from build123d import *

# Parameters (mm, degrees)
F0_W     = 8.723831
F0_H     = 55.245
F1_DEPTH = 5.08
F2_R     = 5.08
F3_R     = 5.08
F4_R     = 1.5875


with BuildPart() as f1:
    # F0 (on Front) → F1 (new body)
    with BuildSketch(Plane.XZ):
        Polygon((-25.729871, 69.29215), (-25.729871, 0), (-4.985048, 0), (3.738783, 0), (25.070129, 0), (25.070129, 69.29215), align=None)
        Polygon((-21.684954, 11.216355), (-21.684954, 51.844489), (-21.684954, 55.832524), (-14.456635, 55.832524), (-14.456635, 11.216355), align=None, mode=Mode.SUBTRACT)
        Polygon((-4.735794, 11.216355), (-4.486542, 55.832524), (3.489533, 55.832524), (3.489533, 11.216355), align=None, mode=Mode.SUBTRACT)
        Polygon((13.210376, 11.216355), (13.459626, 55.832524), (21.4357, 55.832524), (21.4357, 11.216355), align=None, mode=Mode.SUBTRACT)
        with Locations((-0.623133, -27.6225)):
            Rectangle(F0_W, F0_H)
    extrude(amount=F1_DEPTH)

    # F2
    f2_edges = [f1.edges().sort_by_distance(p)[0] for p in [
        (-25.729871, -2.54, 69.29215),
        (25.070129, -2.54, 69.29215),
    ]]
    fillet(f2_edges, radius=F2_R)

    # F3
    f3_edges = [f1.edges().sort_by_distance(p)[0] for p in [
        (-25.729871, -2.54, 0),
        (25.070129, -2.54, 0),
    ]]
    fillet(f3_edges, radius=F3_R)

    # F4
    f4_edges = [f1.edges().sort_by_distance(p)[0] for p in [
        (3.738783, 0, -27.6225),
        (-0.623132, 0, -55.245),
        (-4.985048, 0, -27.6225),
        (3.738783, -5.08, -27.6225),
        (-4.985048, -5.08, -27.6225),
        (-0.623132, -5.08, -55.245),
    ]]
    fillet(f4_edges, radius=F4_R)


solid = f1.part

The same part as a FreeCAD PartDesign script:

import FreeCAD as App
import Part
import Sketcher
Q = App.Units.Quantity


def edges_at(feature, points):
    """Names of the edges that pass closest to the given points."""
    edges = feature.Shape.Edges
    near = lambda p: min(range(len(edges)), key=lambda i: edges[i].distToShape(Part.Vertex(*p))[0])
    return sorted({f"Edge{near(p) + 1}" for p in points})


def add_polygon(sketch, points):
    """Adds a closed chain of lines whose ends are joined by coincident constraints."""
    first, n = sketch.GeometryCount, len(points)
    for a, b in zip(points, points[1:] + points[:1]):
        sketch.addGeometry(Part.LineSegment(App.Vector(*a, 0), App.Vector(*b, 0)), False)
    for i in range(n):
        sketch.addConstraint(Sketcher.Constraint("Coincident", first + i, 2, first + (i + 1) % n, 1))

doc = App.newDocument("Part")
body = doc.addObject("PartDesign::Body", "Body")

sketch1 = body.newObject("Sketcher::SketchObject", "Sketch")
sketch1.AttachmentSupport = (doc.getObject("XZ_Plane"), [""])
sketch1.MapMode = "FlatFace"
add_polygon(sketch1, [(-25.729871, 69.29215), (-25.729871, 0), (-4.985049, 0), (-4.985049, -55.245), (3.738783, -55.245), (3.738783, 0), (25.070129, 0), (25.070129, 69.29215)])
add_polygon(sketch1, [(-14.456635, 11.216355), (-21.684954, 11.216355), (-21.684954, 55.832524), (-14.456635, 55.832524)])
add_polygon(sketch1, [(3.489533, 11.216355), (-4.735794, 11.216355), (-4.486542, 55.832524), (3.489533, 55.832524)])
add_polygon(sketch1, [(21.4357, 11.216355), (13.210376, 11.216355), (13.459626, 55.832524), (21.4357, 55.832524)])
sketch1.addConstraint([
    Sketcher.Constraint("Vertical", 0),
    Sketcher.Constraint("Horizontal", 1),
    Sketcher.Constraint("Vertical", 2),
    Sketcher.Constraint("Horizontal", 3),
    Sketcher.Constraint("Vertical", 4),
    Sketcher.Constraint("Horizontal", 5),
    Sketcher.Constraint("Vertical", 6),
    Sketcher.Constraint("Horizontal", 7),
    Sketcher.Constraint("Horizontal", 8),
    Sketcher.Constraint("Vertical", 9),
    Sketcher.Constraint("Horizontal", 10),
    Sketcher.Constraint("Vertical", 11),
    Sketcher.Constraint("Horizontal", 12),
    Sketcher.Constraint("Horizontal", 14),
    Sketcher.Constraint("Vertical", 15),
    Sketcher.Constraint("Horizontal", 16),
    Sketcher.Constraint("Horizontal", 18),
    Sketcher.Constraint("Vertical", 19),
    Sketcher.Constraint("PointOnObject", 0, 2, -1),
    Sketcher.Constraint("PointOnObject", 4, 2, -1),
    Sketcher.Constraint("Parallel", 13, 17),
    Sketcher.Constraint("Horizontal", 11, 2, 12, 2),
    Sketcher.Constraint("Horizontal", 10, 2, 13, 2),
    Sketcher.Constraint("Horizontal", 15, 2, 16, 2),
    Sketcher.Constraint("Horizontal", 14, 2, 17, 2),
    Sketcher.Constraint("Equal", 14, 18),
    Sketcher.Constraint("DistanceX", 7, 2, 7, 1, Q("2 in")),
    Sketcher.Constraint("DistanceY", 2, 2, 2, 1, Q("2.175 in")),
    Sketcher.Constraint("DistanceX", 3, 1, 3, 2, 8.723831),
    Sketcher.Constraint("DistanceX", 8, 2, 8, 1, 7.228319),
    Sketcher.Constraint("DistanceY", 0, 2, 0, 1, 69.29215),
    Sketcher.Constraint("DistanceY", 9, 1, 9, 2, 44.616169),
    Sketcher.Constraint("DistanceX", -1, 1, 18, 2, 21.4357),
    Sketcher.Constraint("DistanceX", 1, 1, 1, 2, 20.744822),
    Sketcher.Constraint("DistanceX", 12, 2, 12, 1, 8.225327),
    Sketcher.Constraint("DistanceX", 14, 1, 14, 2, 7.976075),
    Sketcher.Constraint("DistanceX", 0, 2, -1, 1, 25.729871),
    Sketcher.Constraint("DistanceX", 11, 2, 12, 2, 9.720841),
    Sketcher.Constraint("DistanceX", 7, 2, 13, 2, 21.243329),
    Sketcher.Constraint("DistanceY", -1, 1, 8, 2, 11.216355),
])
pad1 = body.newObject("PartDesign::Pad", "Pad")
pad1.Profile = sketch1
pad1.Length = Q("0.2 in")
doc.recompute()

fillet = body.newObject("PartDesign::Fillet", "Fillet")
fillet.Base = (pad1, edges_at(pad1, [(-25.73, -2.54, 69.292), (25.07, -2.54, 69.292)]))
fillet.Radius = Q("0.2 in")
doc.recompute()

fillet2 = body.newObject("PartDesign::Fillet", "Fillet001")
fillet2.Base = (fillet, edges_at(fillet, [(-25.73, -2.54, 0), (25.07, -2.54, 0)]))
fillet2.Radius = Q("0.2 in")
doc.recompute()

fillet3 = body.newObject("PartDesign::Fillet", "Fillet002")
fillet3.Base = (fillet2, edges_at(fillet2, [
    (3.739, 0, -27.622),
    (-0.623, 0, -55.245),
    (-4.985, 0, -27.622),
    (3.739, -5.08, -27.622),
    (-4.985, -5.08, -27.622),
    (-0.623, -5.08, -55.245),
]))
fillet3.Radius = Q("0.0625 in")

doc.recompute()
